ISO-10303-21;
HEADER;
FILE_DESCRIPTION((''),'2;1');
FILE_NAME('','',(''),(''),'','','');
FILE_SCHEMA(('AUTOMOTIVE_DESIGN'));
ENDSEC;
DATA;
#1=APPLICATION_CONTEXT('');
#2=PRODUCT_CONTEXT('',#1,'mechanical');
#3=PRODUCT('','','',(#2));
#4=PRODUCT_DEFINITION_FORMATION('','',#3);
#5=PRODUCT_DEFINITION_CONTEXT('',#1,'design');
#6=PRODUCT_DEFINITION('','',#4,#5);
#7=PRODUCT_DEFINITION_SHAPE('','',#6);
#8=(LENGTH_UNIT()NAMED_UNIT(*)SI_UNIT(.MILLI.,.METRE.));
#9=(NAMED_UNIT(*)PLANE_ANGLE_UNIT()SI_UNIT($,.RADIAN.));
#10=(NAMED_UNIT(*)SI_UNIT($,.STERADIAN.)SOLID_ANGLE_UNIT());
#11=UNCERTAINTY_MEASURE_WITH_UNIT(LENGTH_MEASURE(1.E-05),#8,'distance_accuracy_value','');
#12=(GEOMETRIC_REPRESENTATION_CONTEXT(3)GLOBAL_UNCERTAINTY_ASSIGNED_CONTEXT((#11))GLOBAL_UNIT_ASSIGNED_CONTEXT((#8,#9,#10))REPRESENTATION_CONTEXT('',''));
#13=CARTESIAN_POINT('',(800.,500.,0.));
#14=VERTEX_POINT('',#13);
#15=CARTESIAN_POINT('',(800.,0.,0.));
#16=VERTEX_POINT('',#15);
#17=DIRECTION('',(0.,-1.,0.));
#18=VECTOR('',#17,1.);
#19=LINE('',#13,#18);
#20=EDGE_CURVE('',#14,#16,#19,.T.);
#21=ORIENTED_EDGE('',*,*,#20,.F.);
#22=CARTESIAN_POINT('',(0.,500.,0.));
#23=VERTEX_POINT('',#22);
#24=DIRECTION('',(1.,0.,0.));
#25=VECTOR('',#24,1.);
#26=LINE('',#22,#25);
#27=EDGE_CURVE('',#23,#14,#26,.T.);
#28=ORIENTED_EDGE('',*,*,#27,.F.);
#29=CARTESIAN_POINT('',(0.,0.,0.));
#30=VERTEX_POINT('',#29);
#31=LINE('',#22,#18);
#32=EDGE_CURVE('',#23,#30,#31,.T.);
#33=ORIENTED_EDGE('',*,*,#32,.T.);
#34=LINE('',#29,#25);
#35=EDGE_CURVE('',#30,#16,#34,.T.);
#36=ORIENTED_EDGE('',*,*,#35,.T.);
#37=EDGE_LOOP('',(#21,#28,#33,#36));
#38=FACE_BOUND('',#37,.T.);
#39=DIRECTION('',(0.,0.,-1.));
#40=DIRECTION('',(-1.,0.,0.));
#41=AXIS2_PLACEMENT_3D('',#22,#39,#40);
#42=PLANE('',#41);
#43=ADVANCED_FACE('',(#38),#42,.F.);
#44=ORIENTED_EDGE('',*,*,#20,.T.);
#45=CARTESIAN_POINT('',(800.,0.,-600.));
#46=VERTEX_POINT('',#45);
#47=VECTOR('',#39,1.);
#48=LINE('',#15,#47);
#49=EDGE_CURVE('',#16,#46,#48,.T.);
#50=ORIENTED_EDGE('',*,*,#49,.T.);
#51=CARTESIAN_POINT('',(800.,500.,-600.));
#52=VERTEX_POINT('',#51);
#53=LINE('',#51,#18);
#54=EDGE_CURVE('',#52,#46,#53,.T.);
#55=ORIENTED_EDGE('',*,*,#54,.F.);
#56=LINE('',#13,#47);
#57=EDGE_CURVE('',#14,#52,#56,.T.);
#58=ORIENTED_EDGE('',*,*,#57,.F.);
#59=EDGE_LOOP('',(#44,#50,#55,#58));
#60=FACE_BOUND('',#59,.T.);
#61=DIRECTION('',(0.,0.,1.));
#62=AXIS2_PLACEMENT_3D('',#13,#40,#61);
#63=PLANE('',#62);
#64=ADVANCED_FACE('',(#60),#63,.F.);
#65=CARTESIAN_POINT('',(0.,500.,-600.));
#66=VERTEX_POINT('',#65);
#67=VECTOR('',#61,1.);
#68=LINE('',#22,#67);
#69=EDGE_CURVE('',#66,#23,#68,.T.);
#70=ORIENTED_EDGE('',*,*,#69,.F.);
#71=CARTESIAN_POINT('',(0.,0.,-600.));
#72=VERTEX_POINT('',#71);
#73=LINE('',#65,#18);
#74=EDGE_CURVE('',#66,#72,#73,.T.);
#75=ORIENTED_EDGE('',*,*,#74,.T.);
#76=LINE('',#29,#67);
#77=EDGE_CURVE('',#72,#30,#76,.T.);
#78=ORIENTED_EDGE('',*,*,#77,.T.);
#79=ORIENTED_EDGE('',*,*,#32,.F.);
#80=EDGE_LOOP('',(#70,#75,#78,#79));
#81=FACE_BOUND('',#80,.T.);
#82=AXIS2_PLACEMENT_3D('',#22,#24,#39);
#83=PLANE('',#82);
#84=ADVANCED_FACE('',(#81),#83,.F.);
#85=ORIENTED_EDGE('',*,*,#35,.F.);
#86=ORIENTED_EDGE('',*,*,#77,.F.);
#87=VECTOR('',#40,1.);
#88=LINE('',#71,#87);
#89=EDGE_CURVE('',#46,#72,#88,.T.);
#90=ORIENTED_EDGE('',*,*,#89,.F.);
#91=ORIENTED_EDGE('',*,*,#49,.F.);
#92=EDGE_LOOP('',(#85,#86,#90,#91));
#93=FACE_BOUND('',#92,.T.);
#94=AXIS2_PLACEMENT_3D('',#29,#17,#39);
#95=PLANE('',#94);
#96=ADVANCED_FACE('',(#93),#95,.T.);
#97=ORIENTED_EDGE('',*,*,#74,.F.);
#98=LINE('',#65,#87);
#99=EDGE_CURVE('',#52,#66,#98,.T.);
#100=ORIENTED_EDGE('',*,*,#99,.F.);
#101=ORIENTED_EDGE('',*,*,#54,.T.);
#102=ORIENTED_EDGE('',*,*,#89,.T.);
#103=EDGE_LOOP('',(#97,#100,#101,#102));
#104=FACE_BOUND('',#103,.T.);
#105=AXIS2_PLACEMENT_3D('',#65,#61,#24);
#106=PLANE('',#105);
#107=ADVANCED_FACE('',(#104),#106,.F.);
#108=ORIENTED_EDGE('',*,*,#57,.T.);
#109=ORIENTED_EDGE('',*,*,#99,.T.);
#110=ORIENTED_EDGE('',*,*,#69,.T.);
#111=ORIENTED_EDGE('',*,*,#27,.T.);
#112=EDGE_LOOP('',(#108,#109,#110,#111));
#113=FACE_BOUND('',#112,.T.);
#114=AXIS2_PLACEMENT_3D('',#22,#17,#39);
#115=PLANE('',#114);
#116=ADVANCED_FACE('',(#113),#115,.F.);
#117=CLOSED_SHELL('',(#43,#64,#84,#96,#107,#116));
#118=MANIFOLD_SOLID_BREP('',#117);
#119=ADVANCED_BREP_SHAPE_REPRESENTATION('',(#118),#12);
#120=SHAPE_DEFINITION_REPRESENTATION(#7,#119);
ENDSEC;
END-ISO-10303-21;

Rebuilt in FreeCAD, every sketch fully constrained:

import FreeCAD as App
import Part
import Sketcher
from FreeCAD import Vector

doc = App.newDocument("Part")
body = doc.addObject("PartDesign::Body", "Body")

sketch1 = doc.addObject("Sketcher::SketchObject", "Sketch")
body.addObject(sketch1)
sketch1.AttachmentSupport = (doc.XZ_Plane, [""])
sketch1.MapMode = "FlatFace"
sketch1.addGeometry([
    Part.LineSegment(Vector(0, -600, 0), Vector(0, 0, 0)),
    Part.LineSegment(Vector(0, 0, 0), Vector(800, 0, 0)),
    Part.LineSegment(Vector(800, 0, 0), Vector(800, -600, 0)),
    Part.LineSegment(Vector(800, -600, 0), Vector(0, -600, 0)),
], False)
sketch1.addConstraint([
    Sketcher.Constraint("Coincident", 0, 2, 1, 1),
    Sketcher.Constraint("Coincident", 1, 2, 2, 1),
    Sketcher.Constraint("Coincident", 2, 2, 3, 1),
    Sketcher.Constraint("Coincident", 3, 2, 0, 1),
    Sketcher.Constraint("Vertical", 0),
    Sketcher.Constraint("Horizontal", 1),
    Sketcher.Constraint("Vertical", 2),
    Sketcher.Constraint("Horizontal", 3),
    Sketcher.Constraint("Coincident", 0, 2, -1, 1),
    Sketcher.Constraint("DistanceX", 1, 1, 1, 2, 800.0),
    Sketcher.Constraint("DistanceY", 0, 1, 0, 2, 600.0),
])
pad1 = doc.addObject("PartDesign::Pad", "Pad")
body.addObject(pad1)
pad1.Profile = sketch1
pad1.Length = 500
pad1.Reversed = True

doc.recompute()
